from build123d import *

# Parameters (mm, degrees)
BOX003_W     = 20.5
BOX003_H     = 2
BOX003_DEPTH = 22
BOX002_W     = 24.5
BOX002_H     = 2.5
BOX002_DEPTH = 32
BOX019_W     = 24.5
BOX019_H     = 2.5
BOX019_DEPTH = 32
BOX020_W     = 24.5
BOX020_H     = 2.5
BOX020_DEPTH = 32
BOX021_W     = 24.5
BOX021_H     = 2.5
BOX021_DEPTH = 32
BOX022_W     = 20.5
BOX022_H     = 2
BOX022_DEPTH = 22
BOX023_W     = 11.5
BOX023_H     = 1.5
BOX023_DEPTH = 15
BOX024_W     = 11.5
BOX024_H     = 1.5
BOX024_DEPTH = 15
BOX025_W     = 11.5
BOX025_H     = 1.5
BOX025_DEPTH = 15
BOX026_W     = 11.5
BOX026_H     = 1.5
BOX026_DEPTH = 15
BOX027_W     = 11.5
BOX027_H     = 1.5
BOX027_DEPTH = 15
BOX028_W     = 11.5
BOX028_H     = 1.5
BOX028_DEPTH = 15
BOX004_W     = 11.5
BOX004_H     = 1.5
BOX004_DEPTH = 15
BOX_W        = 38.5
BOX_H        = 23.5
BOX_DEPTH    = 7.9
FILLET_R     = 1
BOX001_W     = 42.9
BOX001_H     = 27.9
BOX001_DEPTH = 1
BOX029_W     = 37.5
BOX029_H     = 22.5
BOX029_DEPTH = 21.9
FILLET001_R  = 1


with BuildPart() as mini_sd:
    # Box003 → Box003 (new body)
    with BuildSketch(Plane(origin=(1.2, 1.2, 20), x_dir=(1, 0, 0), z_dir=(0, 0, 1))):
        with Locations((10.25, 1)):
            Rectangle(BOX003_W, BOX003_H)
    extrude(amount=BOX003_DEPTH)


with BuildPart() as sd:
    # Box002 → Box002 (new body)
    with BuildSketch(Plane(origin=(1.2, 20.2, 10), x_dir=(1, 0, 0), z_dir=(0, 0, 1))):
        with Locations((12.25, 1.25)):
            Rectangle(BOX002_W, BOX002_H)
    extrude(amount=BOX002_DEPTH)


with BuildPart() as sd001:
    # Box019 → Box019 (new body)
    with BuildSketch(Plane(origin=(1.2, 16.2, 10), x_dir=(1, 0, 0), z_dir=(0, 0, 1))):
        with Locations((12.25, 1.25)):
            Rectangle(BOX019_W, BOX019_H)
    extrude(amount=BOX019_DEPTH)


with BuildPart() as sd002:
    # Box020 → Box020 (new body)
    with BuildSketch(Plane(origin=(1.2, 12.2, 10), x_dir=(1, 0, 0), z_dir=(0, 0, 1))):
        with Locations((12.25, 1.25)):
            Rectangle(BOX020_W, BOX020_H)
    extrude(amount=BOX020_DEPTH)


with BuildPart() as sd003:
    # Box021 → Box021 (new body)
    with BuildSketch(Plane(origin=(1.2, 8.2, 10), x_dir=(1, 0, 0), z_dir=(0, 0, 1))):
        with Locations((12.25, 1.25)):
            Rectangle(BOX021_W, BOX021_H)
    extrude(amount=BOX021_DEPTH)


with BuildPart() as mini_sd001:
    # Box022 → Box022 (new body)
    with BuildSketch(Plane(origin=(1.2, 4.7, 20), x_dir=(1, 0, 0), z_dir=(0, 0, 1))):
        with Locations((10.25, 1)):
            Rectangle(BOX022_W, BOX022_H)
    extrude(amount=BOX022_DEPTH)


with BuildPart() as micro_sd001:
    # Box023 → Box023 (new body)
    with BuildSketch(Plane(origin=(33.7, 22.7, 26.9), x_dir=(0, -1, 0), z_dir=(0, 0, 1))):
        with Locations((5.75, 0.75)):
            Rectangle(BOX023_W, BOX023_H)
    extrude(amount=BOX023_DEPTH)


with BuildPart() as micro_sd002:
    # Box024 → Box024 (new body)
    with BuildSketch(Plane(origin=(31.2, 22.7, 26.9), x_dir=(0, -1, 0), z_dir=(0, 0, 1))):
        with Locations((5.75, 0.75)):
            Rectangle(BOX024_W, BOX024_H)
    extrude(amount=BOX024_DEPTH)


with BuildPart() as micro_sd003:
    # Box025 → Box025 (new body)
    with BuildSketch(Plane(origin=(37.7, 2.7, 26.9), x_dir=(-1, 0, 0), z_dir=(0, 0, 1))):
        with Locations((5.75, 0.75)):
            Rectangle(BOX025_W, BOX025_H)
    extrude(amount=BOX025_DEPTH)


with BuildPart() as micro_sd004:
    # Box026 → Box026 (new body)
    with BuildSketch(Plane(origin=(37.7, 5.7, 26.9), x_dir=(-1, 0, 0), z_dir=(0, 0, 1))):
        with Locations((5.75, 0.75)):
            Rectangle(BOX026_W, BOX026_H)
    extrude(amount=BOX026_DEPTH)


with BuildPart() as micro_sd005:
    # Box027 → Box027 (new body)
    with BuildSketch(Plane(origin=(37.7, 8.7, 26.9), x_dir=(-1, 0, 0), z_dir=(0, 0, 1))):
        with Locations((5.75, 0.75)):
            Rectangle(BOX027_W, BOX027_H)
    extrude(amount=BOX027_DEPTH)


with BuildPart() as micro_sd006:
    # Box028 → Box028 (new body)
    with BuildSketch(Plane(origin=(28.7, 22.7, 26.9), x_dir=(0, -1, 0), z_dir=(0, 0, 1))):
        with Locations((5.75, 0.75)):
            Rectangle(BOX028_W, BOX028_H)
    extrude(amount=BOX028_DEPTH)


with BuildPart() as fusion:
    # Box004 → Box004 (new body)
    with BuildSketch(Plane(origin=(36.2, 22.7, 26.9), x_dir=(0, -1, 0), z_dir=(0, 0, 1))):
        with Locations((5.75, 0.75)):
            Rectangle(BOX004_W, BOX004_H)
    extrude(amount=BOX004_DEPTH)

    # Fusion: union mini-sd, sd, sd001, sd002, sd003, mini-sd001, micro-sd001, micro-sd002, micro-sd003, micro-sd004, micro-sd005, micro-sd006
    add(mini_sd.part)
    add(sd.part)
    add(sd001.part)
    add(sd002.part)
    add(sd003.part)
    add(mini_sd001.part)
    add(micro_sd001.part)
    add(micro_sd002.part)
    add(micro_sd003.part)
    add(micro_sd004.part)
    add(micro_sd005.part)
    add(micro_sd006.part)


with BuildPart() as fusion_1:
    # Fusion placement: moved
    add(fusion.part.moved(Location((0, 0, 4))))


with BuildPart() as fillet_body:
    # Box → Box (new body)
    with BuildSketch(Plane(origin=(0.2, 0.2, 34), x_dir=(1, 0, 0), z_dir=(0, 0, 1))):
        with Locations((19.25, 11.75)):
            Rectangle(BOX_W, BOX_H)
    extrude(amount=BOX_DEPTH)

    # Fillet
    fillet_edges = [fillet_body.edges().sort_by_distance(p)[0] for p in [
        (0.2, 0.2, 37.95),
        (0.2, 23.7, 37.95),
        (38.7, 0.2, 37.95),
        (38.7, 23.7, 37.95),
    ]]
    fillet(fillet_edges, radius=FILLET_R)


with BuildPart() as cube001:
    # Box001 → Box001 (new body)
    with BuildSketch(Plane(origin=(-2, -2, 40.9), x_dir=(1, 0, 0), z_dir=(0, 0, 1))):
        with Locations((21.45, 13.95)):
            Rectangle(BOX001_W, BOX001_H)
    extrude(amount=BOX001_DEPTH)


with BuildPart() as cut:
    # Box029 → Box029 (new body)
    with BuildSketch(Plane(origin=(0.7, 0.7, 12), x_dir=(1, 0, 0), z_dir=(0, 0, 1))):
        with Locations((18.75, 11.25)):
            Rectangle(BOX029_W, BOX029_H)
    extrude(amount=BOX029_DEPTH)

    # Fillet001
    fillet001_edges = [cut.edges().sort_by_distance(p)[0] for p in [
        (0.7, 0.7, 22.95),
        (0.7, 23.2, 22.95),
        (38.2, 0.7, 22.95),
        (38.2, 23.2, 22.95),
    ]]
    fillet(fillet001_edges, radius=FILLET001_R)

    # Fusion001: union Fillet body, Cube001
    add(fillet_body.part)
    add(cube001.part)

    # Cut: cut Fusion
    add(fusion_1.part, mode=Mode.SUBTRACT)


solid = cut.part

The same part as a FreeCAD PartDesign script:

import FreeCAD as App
import Part
import Sketcher
Q = App.Units.Quantity


def edges_at(feature, points):
    """Names of the edges that pass closest to the given points."""
    edges = feature.Shape.Edges
    near = lambda p: min(range(len(edges)), key=lambda i: edges[i].distToShape(Part.Vertex(*p))[0])
    return sorted({f"Edge{near(p) + 1}" for p in points})


def add_polygon(sketch, points):
    """Adds a closed chain of lines whose ends are joined by coincident constraints."""
    first, n = sketch.GeometryCount, len(points)
    for a, b in zip(points, points[1:] + points[:1]):
        sketch.addGeometry(Part.LineSegment(App.Vector(*a, 0), App.Vector(*b, 0)), False)
    for i in range(n):
        sketch.addConstraint(Sketcher.Constraint("Coincident", first + i, 2, first + (i + 1) % n, 1))

doc = App.newDocument("Part")
body = doc.addObject("PartDesign::Body", "Body")

sketch1 = body.newObject("Sketcher::SketchObject", "Sketch")
sketch1.AttachmentSupport = (doc.getObject("XY_Plane"), [""])
sketch1.MapMode = "FlatFace"
sketch1.AttachmentOffset = App.Placement(App.Vector(0, 0, 20), App.Rotation())
add_polygon(sketch1, [(1.2, 3.2), (1.2, 1.2), (21.7, 1.2), (21.7, 3.2)])
sketch1.addConstraint([
    Sketcher.Constraint("Vertical", 0),
    Sketcher.Constraint("Horizontal", 1),
    Sketcher.Constraint("Vertical", 2),
    Sketcher.Constraint("Horizontal", 3),
    Sketcher.Constraint("DistanceY", 0, 2, 0, 1, Q("2 mm")),
    Sketcher.Constraint("DistanceX", 1, 1, 1, 2, Q("20.5 mm")),
    Sketcher.Constraint("DistanceX", -1, 1, 0, 2, Q("1.2 mm")),
    Sketcher.Constraint("DistanceY", -1, 1, 0, 2, Q("1.2 mm")),
])
pad1 = body.newObject("PartDesign::Pad", "Pad")
pad1.Profile = sketch1
pad1.Length = 22
body2 = doc.addObject("PartDesign::Body", "Body001")

sketch2 = body2.newObject("Sketcher::SketchObject", "Sketch001")
sketch2.AttachmentSupport = (doc.getObject("XY_Plane001"), [""])
sketch2.MapMode = "FlatFace"
sketch2.AttachmentOffset = App.Placement(App.Vector(0, 0, 10), App.Rotation())
add_polygon(sketch2, [(1.2, 22.7), (1.2, 20.2), (25.7, 20.2), (25.7, 22.7)])
sketch2.addConstraint([
    Sketcher.Constraint("Vertical", 0),
    Sketcher.Constraint("Horizontal", 1),
    Sketcher.Constraint("Vertical", 2),
    Sketcher.Constraint("Horizontal", 3),
    Sketcher.Constraint("DistanceX", 1, 1, 1, 2, Q("24.5 mm")),
    Sketcher.Constraint("DistanceY", 0, 2, 0, 1, Q("2.5 mm")),
    Sketcher.Constraint("DistanceX", -1, 1, 0, 2, Q("1.2 mm")),
    Sketcher.Constraint("DistanceY", -1, 1, 0, 2, Q("20.2 mm")),
])
pad2 = body2.newObject("PartDesign::Pad", "Pad001")
pad2.Profile = sketch2
pad2.Length = 32
body3 = doc.addObject("PartDesign::Body", "Body002")

sketch3 = body3.newObject("Sketcher::SketchObject", "Sketch002")
sketch3.AttachmentSupport = (doc.getObject("XY_Plane002"), [""])
sketch3.MapMode = "FlatFace"
sketch3.AttachmentOffset = App.Placement(App.Vector(0, 0, 10), App.Rotation())
add_polygon(sketch3, [(1.2, 18.7), (1.2, 16.2), (25.7, 16.2), (25.7, 18.7)])
sketch3.addConstraint([
    Sketcher.Constraint("Vertical", 0),
    Sketcher.Constraint("Horizontal", 1),
    Sketcher.Constraint("Vertical", 2),
    Sketcher.Constraint("Horizontal", 3),
    Sketcher.Constraint("DistanceX", 1, 1, 1, 2, Q("24.5 mm")),
    Sketcher.Constraint("DistanceY", 0, 2, 0, 1, Q("2.5 mm")),
    Sketcher.Constraint("DistanceX", -1, 1, 0, 2, Q("1.2 mm")),
    Sketcher.Constraint("DistanceY", -1, 1, 0, 2, Q("16.2 mm")),
])
pad3 = body3.newObject("PartDesign::Pad", "Pad002")
pad3.Profile = sketch3
pad3.Length = 32
body4 = doc.addObject("PartDesign::Body", "Body003")

sketch4 = body4.newObject("Sketcher::SketchObject", "Sketch003")
sketch4.AttachmentSupport = (doc.getObject("XY_Plane003"), [""])
sketch4.MapMode = "FlatFace"
sketch4.AttachmentOffset = App.Placement(App.Vector(0, 0, 10), App.Rotation())
add_polygon(sketch4, [(1.2, 14.7), (1.2, 12.2), (25.7, 12.2), (25.7, 14.7)])
sketch4.addConstraint([
    Sketcher.Constraint("Vertical", 0),
    Sketcher.Constraint("Horizontal", 1),
    Sketcher.Constraint("Vertical", 2),
    Sketcher.Constraint("Horizontal", 3),
    Sketcher.Constraint("DistanceX", 1, 1, 1, 2, Q("24.5 mm")),
    Sketcher.Constraint("DistanceY", 0, 2, 0, 1, Q("2.5 mm")),
    Sketcher.Constraint("DistanceX", -1, 1, 0, 2, Q("1.2 mm")),
    Sketcher.Constraint("DistanceY", -1, 1, 0, 2, Q("12.2 mm")),
])
pad4 = body4.newObject("PartDesign::Pad", "Pad003")
pad4.Profile = sketch4
pad4.Length = 32
body5 = doc.addObject("PartDesign::Body", "Body004")

sketch5 = body5.newObject("Sketcher::SketchObject", "Sketch004")
sketch5.AttachmentSupport = (doc.getObject("XY_Plane004"), [""])
sketch5.MapMode = "FlatFace"
sketch5.AttachmentOffset = App.Placement(App.Vector(0, 0, 10), App.Rotation())
add_polygon(sketch5, [(1.2, 10.7), (1.2, 8.2), (25.7, 8.2), (25.7, 10.7)])
sketch5.addConstraint([
    Sketcher.Constraint("Vertical", 0),
    Sketcher.Constraint("Horizontal", 1),
    Sketcher.Constraint("Vertical", 2),
    Sketcher.Constraint("Horizontal", 3),
    Sketcher.Constraint("DistanceX", 1, 1, 1, 2, Q("24.5 mm")),
    Sketcher.Constraint("DistanceY", 0, 2, 0, 1, Q("2.5 mm")),
    Sketcher.Constraint("DistanceX", -1, 1, 0, 2, Q("1.2 mm")),
    Sketcher.Constraint("DistanceY", -1, 1, 0, 2, Q("8.2 mm")),
])
pad5 = body5.newObject("PartDesign::Pad", "Pad004")
pad5.Profile = sketch5
pad5.Length = 32
body6 = doc.addObject("PartDesign::Body", "Body005")

sketch6 = body6.newObject("Sketcher::SketchObject", "Sketch005")
sketch6.AttachmentSupport = (doc.getObject("XY_Plane005"), [""])
sketch6.MapMode = "FlatFace"
sketch6.AttachmentOffset = App.Placement(App.Vector(0, 0, 20), App.Rotation())
add_polygon(sketch6, [(1.2, 6.7), (1.2, 4.7), (21.7, 4.7), (21.7, 6.7)])
sketch6.addConstraint([
    Sketcher.Constraint("Vertical", 0),
    Sketcher.Constraint("Horizontal", 1),
    Sketcher.Constraint("Vertical", 2),
    Sketcher.Constraint("Horizontal", 3),
    Sketcher.Constraint("DistanceY", 0, 2, 0, 1, Q("2 mm")),
    Sketcher.Constraint("DistanceX", 1, 1, 1, 2, Q("20.5 mm")),
    Sketcher.Constraint("DistanceX", -1, 1, 0, 2, Q("1.2 mm")),
    Sketcher.Constraint("DistanceY", -1, 1, 0, 2, Q("4.7 mm")),
])
pad6 = body6.newObject("PartDesign::Pad", "Pad005")
pad6.Profile = sketch6
pad6.Length = 22
body7 = doc.addObject("PartDesign::Body", "Body006")

sketch7 = body7.newObject("Sketcher::SketchObject", "Sketch006")
sketch7.AttachmentSupport = (doc.getObject("XY_Plane006"), [""])
sketch7.MapMode = "FlatFace"
sketch7.AttachmentOffset = App.Placement(App.Vector(0, 0, 26.9), App.Rotation())
add_polygon(sketch7, [(35.2, 22.7), (33.7, 22.7), (33.7, 11.2), (35.2, 11.2)])
sketch7.addConstraint([
    Sketcher.Constraint("Horizontal", 0),
    Sketcher.Constraint("Vertical", 1),
    Sketcher.Constraint("Horizontal", 2),
    Sketcher.Constraint("Vertical", 3),
    Sketcher.Constraint("DistanceX", 0, 2, 0, 1, Q("1.5 mm")),
    Sketcher.Constraint("DistanceY", 1, 2, 1, 1, Q("11.5 mm")),
    Sketcher.Constraint("DistanceX", -1, 1, 0, 2, Q("33.7 mm")),
    Sketcher.Constraint("DistanceY", -1, 1, 0, 2, Q("22.7 mm")),
])
pad7 = body7.newObject("PartDesign::Pad", "Pad006")
pad7.Profile = sketch7
pad7.Length = 15
body8 = doc.addObject("PartDesign::Body", "Body007")

sketch8 = body8.newObject("Sketcher::SketchObject", "Sketch007")
sketch8.AttachmentSupport = (doc.getObject("XY_Plane007"), [""])
sketch8.MapMode = "FlatFace"
sketch8.AttachmentOffset = App.Placement(App.Vector(0, 0, 26.9), App.Rotation())
add_polygon(sketch8, [(32.7, 22.7), (31.2, 22.7), (31.2, 11.2), (32.7, 11.2)])
sketch8.addConstraint([
    Sketcher.Constraint("Horizontal", 0),
    Sketcher.Constraint("Vertical", 1),
    Sketcher.Constraint("Horizontal", 2),
    Sketcher.Constraint("Vertical", 3),
    Sketcher.Constraint("DistanceX", 0, 2, 0, 1, Q("1.5 mm")),
    Sketcher.Constraint("DistanceY", 1, 2, 1, 1, Q("11.5 mm")),
    Sketcher.Constraint("DistanceX", -1, 1, 0, 2, Q("31.2 mm")),
    Sketcher.Constraint("DistanceY", -1, 1, 0, 2, Q("22.7 mm")),
])
pad8 = body8.newObject("PartDesign::Pad", "Pad007")
pad8.Profile = sketch8
pad8.Length = 15
body9 = doc.addObject("PartDesign::Body", "Body008")

sketch9 = body9.newObject("Sketcher::SketchObject", "Sketch008")
sketch9.AttachmentSupport = (doc.getObject("XY_Plane008"), [""])
sketch9.MapMode = "FlatFace"
sketch9.AttachmentOffset = App.Placement(App.Vector(0, 0, 26.9), App.Rotation())
add_polygon(sketch9, [(37.7, 1.2), (37.7, 2.7), (26.2, 2.7), (26.2, 1.2)])
sketch9.addConstraint([
    Sketcher.Constraint("Vertical", 0),
    Sketcher.Constraint("Horizontal", 1),
    Sketcher.Constraint("Vertical", 2),
    Sketcher.Constraint("Horizontal", 3),
    Sketcher.Constraint("DistanceX", 1, 2, 1, 1, Q("11.5 mm")),
    Sketcher.Constraint("DistanceY", 0, 1, 0, 2, Q("1.5 mm")),
    Sketcher.Constraint("DistanceX", -1, 1, 0, 2, Q("37.7 mm")),
    Sketcher.Constraint("DistanceY", -1, 1, 0, 2, Q("2.7 mm")),
])
pad9 = body9.newObject("PartDesign::Pad", "Pad008")
pad9.Profile = sketch9
pad9.Length = 15
body10 = doc.addObject("PartDesign::Body", "Body009")

sketch10 = body10.newObject("Sketcher::SketchObject", "Sketch009")
sketch10.AttachmentSupport = (doc.getObject("XY_Plane009"), [""])
sketch10.MapMode = "FlatFace"
sketch10.AttachmentOffset = App.Placement(App.Vector(0, 0, 26.9), App.Rotation())
add_polygon(sketch10, [(37.7, 4.2), (37.7, 5.7), (26.2, 5.7), (26.2, 4.2)])
sketch10.addConstraint([
    Sketcher.Constraint("Vertical", 0),
    Sketcher.Constraint("Horizontal", 1),
    Sketcher.Constraint("Vertical", 2),
    Sketcher.Constraint("Horizontal", 3),
    Sketcher.Constraint("DistanceX", 1, 2, 1, 1, Q("11.5 mm")),
    Sketcher.Constraint("DistanceY", 0, 1, 0, 2, Q("1.5 mm")),
    Sketcher.Constraint("DistanceX", -1, 1, 0, 2, Q("37.7 mm")),
    Sketcher.Constraint("DistanceY", -1, 1, 0, 2, Q("5.7 mm")),
])
pad10 = body10.newObject("PartDesign::Pad", "Pad009")
pad10.Profile = sketch10
pad10.Length = 15
body11 = doc.addObject("PartDesign::Body", "Body010")

sketch11 = body11.newObject("Sketcher::SketchObject", "Sketch010")
sketch11.AttachmentSupport = (doc.getObject("XY_Plane010"), [""])
sketch11.MapMode = "FlatFace"
sketch11.AttachmentOffset = App.Placement(App.Vector(0, 0, 26.9), App.Rotation())
add_polygon(sketch11, [(37.7, 7.2), (37.7, 8.7), (26.2, 8.7), (26.2, 7.2)])
sketch11.addConstraint([
    Sketcher.Constraint("Vertical", 0),
    Sketcher.Constraint("Horizontal", 1),
    Sketcher.Constraint("Vertical", 2),
    Sketcher.Constraint("Horizontal", 3),
    Sketcher.Constraint("DistanceX", 1, 2, 1, 1, Q("11.5 mm")),
    Sketcher.Constraint("DistanceY", 0, 1, 0, 2, Q("1.5 mm")),
    Sketcher.Constraint("DistanceX", -1, 1, 0, 2, Q("37.7 mm")),
    Sketcher.Constraint("DistanceY", -1, 1, 0, 2, Q("8.7 mm")),
])
pad11 = body11.newObject("PartDesign::Pad", "Pad010")
pad11.Profile = sketch11
pad11.Length = 15
body12 = doc.addObject("PartDesign::Body", "Body011")

sketch12 = body12.newObject("Sketcher::SketchObject", "Sketch011")
sketch12.AttachmentSupport = (doc.getObject("XY_Plane011"), [""])
sketch12.MapMode = "FlatFace"
sketch12.AttachmentOffset = App.Placement(App.Vector(0, 0, 26.9), App.Rotation())
add_polygon(sketch12, [(30.2, 22.7), (28.7, 22.7), (28.7, 11.2), (30.2, 11.2)])
sketch12.addConstraint([
    Sketcher.Constraint("Horizontal", 0),
    Sketcher.Constraint("Vertical", 1),
    Sketcher.Constraint("Horizontal", 2),
    Sketcher.Constraint("Vertical", 3),
    Sketcher.Constraint("DistanceX", 0, 2, 0, 1, Q("1.5 mm")),
    Sketcher.Constraint("DistanceY", 1, 2, 1, 1, Q("11.5 mm")),
    Sketcher.Constraint("DistanceX", -1, 1, 0, 2, Q("28.7 mm")),
    Sketcher.Constraint("DistanceY", -1, 1, 0, 2, Q("22.7 mm")),
])
pad12 = body12.newObject("PartDesign::Pad", "Pad011")
pad12.Profile = sketch12
pad12.Length = 15
body13 = doc.addObject("PartDesign::Body", "Body012")
body13.AllowCompound = True

sketch13 = body13.newObject("Sketcher::SketchObject", "Sketch012")
sketch13.AttachmentSupport = (doc.getObject("XY_Plane012"), [""])
sketch13.MapMode = "FlatFace"
sketch13.AttachmentOffset = App.Placement(App.Vector(0, 0, 26.9), App.Rotation())
add_polygon(sketch13, [(37.7, 22.7), (36.2, 22.7), (36.2, 11.2), (37.7, 11.2)])
sketch13.addConstraint([
    Sketcher.Constraint("Horizontal", 0),
    Sketcher.Constraint("Vertical", 1),
    Sketcher.Constraint("Horizontal", 2),
    Sketcher.Constraint("Vertical", 3),
    Sketcher.Constraint("DistanceX", 0, 2, 0, 1, Q("1.5 mm")),
    Sketcher.Constraint("DistanceY", 1, 2, 1, 1, Q("11.5 mm")),
    Sketcher.Constraint("DistanceX", -1, 1, 0, 2, Q("36.2 mm")),
    Sketcher.Constraint("DistanceY", -1, 1, 0, 2, Q("22.7 mm")),
])
pad13 = body13.newObject("PartDesign::Pad", "Pad012")
pad13.Profile = sketch13
pad13.Length = 15
doc.recompute()

boolean = body13.newObject("PartDesign::Boolean", "Boolean")
boolean.Type = "Fuse"
boolean.addObjects([body])
doc.recompute()

boolean2 = body13.newObject("PartDesign::Boolean", "Boolean001")
boolean2.Type = "Fuse"
boolean2.addObjects([body2])
doc.recompute()

boolean3 = body13.newObject("PartDesign::Boolean", "Boolean002")
boolean3.Type = "Fuse"
boolean3.addObjects([body3])
doc.recompute()

boolean4 = body13.newObject("PartDesign::Boolean", "Boolean003")
boolean4.Type = "Fuse"
boolean4.addObjects([body4])
doc.recompute()

boolean5 = body13.newObject("PartDesign::Boolean", "Boolean004")
boolean5.Type = "Fuse"
boolean5.addObjects([body5])
doc.recompute()

boolean6 = body13.newObject("PartDesign::Boolean", "Boolean005")
boolean6.Type = "Fuse"
boolean6.addObjects([body6])
doc.recompute()

boolean7 = body13.newObject("PartDesign::Boolean", "Boolean006")
boolean7.Type = "Fuse"
boolean7.addObjects([body7])
doc.recompute()

boolean8 = body13.newObject("PartDesign::Boolean", "Boolean007")
boolean8.Type = "Fuse"
boolean8.addObjects([body8])
doc.recompute()

boolean9 = body13.newObject("PartDesign::Boolean", "Boolean008")
boolean9.Type = "Fuse"
boolean9.addObjects([body9])
doc.recompute()

boolean10 = body13.newObject("PartDesign::Boolean", "Boolean009")
boolean10.Type = "Fuse"
boolean10.addObjects([body10])
doc.recompute()

boolean11 = body13.newObject("PartDesign::Boolean", "Boolean010")
boolean11.Type = "Fuse"
boolean11.addObjects([body11])
doc.recompute()

boolean12 = body13.newObject("PartDesign::Boolean", "Boolean011")
boolean12.Type = "Fuse"
boolean12.addObjects([body12])
body14 = doc.addObject("PartDesign::Body", "Body013")
body14.AllowCompound = True
doc.recompute()

body13.Placement = App.Placement(App.Vector(0, 0, 4), App.Rotation(App.Vector(0, 0, 1), 0))
boolean13 = body14.newObject("PartDesign::Boolean", "Boolean012")
boolean13.Type = "Fuse"
boolean13.addObjects([body13])
body15 = doc.addObject("PartDesign::Body", "Body014")

sketch14 = body15.newObject("Sketcher::SketchObject", "Sketch013")
sketch14.AttachmentSupport = (doc.getObject("XY_Plane014"), [""])
sketch14.MapMode = "FlatFace"
sketch14.AttachmentOffset = App.Placement(App.Vector(0, 0, 34), App.Rotation())
add_polygon(sketch14, [(0, 24), (0, 0), (39, 0), (39, 24)])
sketch14.addConstraint([
    Sketcher.Constraint("Vertical", 0),
    Sketcher.Constraint("Horizontal", 1),
    Sketcher.Constraint("Vertical", 2),
    Sketcher.Constraint("Horizontal", 3),
    Sketcher.Constraint("DistanceX", 1, 1, 1, 2, Q("38.5 mm")),
    Sketcher.Constraint("DistanceY", 0, 2, 0, 1, Q("23.5 mm")),
    Sketcher.Constraint("DistanceX", -1, 1, 0, 2, Q("0.2 mm")),
    Sketcher.Constraint("DistanceY", -1, 1, 0, 2, Q("0.2 mm")),
])
pad14 = body15.newObject("PartDesign::Pad", "Pad013")
pad14.Profile = sketch14
pad14.Length = 7.9
doc.recompute()

fillet = body15.newObject("PartDesign::Fillet", "Fillet")
fillet.Base = (pad14, edges_at(pad14, [
    (0.2, 0.2, 37.95),
    (0.2, 23.7, 37.95),
    (38.7, 0.2, 37.95),
    (38.7, 23.7, 37.95),
]))
fillet.Radius = 1
body16 = doc.addObject("PartDesign::Body", "Body015")

sketch15 = body16.newObject("Sketcher::SketchObject", "Sketch014")
sketch15.AttachmentSupport = (doc.getObject("XY_Plane015"), [""])
sketch15.MapMode = "FlatFace"
sketch15.AttachmentOffset = App.Placement(App.Vector(0, 0, 40.9), App.Rotation())
add_polygon(sketch15, [(-2, 26), (-2, -2), (41, -2), (41, 26)])
sketch15.addConstraint([
    Sketcher.Constraint("Vertical", 0),
    Sketcher.Constraint("Horizontal", 1),
    Sketcher.Constraint("Vertical", 2),
    Sketcher.Constraint("Horizontal", 3),
    Sketcher.Constraint("DistanceX", 1, 1, 1, 2, Q("42.9 mm")),
    Sketcher.Constraint("DistanceY", 0, 2, 0, 1, Q("27.9 mm")),
    Sketcher.Constraint("DistanceX", 0, 2, -1, 1, Q("2 mm")),
    Sketcher.Constraint("DistanceY", 0, 2, -1, 1, Q("2 mm")),
])
pad15 = body16.newObject("PartDesign::Pad", "Pad014")
pad15.Profile = sketch15
pad15.Length = 1
body17 = doc.addObject("PartDesign::Body", "Body016")
body17.AllowCompound = True

sketch16 = body17.newObject("Sketcher::SketchObject", "Sketch015")
sketch16.AttachmentSupport = (doc.getObject("XY_Plane016"), [""])
sketch16.MapMode = "FlatFace"
sketch16.AttachmentOffset = App.Placement(App.Vector(0, 0, 12), App.Rotation())
add_polygon(sketch16, [(1, 23), (1, 1), (38, 1), (38, 23)])
sketch16.addConstraint([
    Sketcher.Constraint("Vertical", 0),
    Sketcher.Constraint("Horizontal", 1),
    Sketcher.Constraint("Vertical", 2),
    Sketcher.Constraint("Horizontal", 3),
    Sketcher.Constraint("DistanceX", 1, 1, 1, 2, Q("37.5 mm")),
    Sketcher.Constraint("DistanceY", 0, 2, 0, 1, Q("22.5 mm")),
    Sketcher.Constraint("DistanceX", -1, 1, 0, 2, Q("0.7 mm")),
    Sketcher.Constraint("DistanceY", -1, 1, 0, 2, Q("0.7 mm")),
])
pad16 = body17.newObject("PartDesign::Pad", "Pad015")
pad16.Profile = sketch16
pad16.Length = 21.9
doc.recompute()

fillet2 = body17.newObject("PartDesign::Fillet", "Fillet001")
fillet2.Base = (pad16, edges_at(pad16, [
    (0.7, 0.7, 22.95),
    (0.7, 23.2, 22.95),
    (38.2, 0.7, 22.95),
    (38.2, 23.2, 22.95),
]))
fillet2.Radius = 1
doc.recompute()

boolean14 = body17.newObject("PartDesign::Boolean", "Boolean013")
boolean14.Type = "Fuse"
boolean14.addObjects([body15])
doc.recompute()

boolean15 = body17.newObject("PartDesign::Boolean", "Boolean014")
boolean15.Type = "Fuse"
boolean15.addObjects([body16])
doc.recompute()

boolean16 = body17.newObject("PartDesign::Boolean", "Boolean015")
boolean16.Type = "Cut"
boolean16.addObjects([body14])

doc.recompute()
